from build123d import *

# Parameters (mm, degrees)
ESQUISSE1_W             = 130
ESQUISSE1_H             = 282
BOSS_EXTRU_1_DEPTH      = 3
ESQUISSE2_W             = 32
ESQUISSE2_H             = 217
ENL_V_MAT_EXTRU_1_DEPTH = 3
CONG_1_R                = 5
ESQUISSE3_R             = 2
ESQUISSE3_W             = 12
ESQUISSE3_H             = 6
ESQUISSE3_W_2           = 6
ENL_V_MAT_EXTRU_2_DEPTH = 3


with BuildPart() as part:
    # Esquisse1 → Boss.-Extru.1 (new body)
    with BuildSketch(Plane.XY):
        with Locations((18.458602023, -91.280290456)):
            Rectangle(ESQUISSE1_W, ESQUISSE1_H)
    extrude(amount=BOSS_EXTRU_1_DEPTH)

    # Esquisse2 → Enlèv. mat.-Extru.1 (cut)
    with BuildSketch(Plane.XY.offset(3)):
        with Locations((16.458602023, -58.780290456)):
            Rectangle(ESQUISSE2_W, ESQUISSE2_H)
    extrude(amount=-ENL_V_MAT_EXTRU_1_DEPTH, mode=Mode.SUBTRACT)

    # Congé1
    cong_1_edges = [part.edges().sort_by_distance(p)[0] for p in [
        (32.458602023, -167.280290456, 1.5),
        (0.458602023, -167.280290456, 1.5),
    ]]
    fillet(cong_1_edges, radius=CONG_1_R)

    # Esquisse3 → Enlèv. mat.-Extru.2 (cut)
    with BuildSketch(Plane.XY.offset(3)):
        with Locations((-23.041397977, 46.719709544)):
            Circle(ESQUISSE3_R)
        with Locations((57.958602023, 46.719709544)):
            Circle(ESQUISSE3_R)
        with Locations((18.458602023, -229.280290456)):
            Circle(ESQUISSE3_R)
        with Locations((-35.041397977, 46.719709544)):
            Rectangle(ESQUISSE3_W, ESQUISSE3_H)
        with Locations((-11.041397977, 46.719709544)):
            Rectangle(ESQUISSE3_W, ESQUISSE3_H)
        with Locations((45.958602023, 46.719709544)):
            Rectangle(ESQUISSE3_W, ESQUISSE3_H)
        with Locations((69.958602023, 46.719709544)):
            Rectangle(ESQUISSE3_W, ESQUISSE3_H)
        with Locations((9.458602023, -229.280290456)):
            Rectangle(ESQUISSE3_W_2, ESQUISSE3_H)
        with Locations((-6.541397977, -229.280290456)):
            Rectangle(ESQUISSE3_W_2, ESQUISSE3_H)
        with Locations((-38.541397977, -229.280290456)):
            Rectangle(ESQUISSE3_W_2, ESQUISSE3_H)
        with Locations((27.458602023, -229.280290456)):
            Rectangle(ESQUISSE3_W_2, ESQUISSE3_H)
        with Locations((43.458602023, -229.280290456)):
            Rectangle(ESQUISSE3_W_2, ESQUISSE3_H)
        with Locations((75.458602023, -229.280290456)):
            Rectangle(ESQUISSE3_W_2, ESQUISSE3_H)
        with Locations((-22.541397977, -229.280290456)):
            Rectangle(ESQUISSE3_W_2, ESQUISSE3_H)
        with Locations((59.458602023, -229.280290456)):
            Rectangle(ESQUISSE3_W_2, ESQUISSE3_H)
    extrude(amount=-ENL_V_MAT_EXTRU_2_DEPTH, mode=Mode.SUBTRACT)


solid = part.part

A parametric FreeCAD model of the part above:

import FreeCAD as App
import Part
import Sketcher
Q = App.Units.Quantity


def edges_at(feature, points):
    """Names of the edges that pass closest to the given points."""
    edges = feature.Shape.Edges
    near = lambda p: min(range(len(edges)), key=lambda i: edges[i].distToShape(Part.Vertex(*p))[0])
    return sorted({f"Edge{near(p) + 1}" for p in points})

doc = App.newDocument("Part")
body = doc.addObject("PartDesign::Body", "Body")

# Sketch on XY plane
sketch1 = body.newObject("Sketcher::SketchObject", "Sketch")
sketch1.AttachmentSupport = (doc.getObject("XY_Plane"), [""])
sketch1.MapMode = "FlatFace"
sketch1.addGeometry(Part.LineSegment(App.Vector(-47, 50, 0), App.Vector(-47, -232, 0)), False)
sketch1.addGeometry(Part.LineSegment(App.Vector(-47, -232, 0), App.Vector(83, -232, 0)), False)
sketch1.addGeometry(Part.LineSegment(App.Vector(83, -232, 0), App.Vector(83, 50, 0)), False)
sketch1.addGeometry(Part.LineSegment(App.Vector(83, 50, 0), App.Vector(-47, 50, 0)), False)
sketch1.addConstraint(Sketcher.Constraint("Coincident", 0, 2, 1, 1))
sketch1.addConstraint(Sketcher.Constraint("Coincident", 1, 2, 2, 1))
sketch1.addConstraint(Sketcher.Constraint("Coincident", 2, 2, 3, 1))
sketch1.addConstraint(Sketcher.Constraint("Coincident", 3, 2, 0, 1))
sketch1.addConstraint(Sketcher.Constraint("Vertical", 0))
sketch1.addConstraint(Sketcher.Constraint("Horizontal", 1))
sketch1.addConstraint(Sketcher.Constraint("Vertical", 2))
sketch1.addConstraint(Sketcher.Constraint("Horizontal", 3))
sketch1.addConstraint(Sketcher.Constraint("DistanceX", 1, 1, 1, 2, Q("130 mm")))
sketch1.addConstraint(Sketcher.Constraint("DistanceY", 0, 2, 0, 1, Q("282 mm")))
sketch1.addConstraint(Sketcher.Constraint("DistanceY", 0, 2, -1, 1, Q("232.28029 mm")))
sketch1.addConstraint(Sketcher.Constraint("DistanceX", 0, 2, -1, 1, Q("46.541398 mm")))
pad1 = body.newObject("PartDesign::Pad", "Pad")
pad1.Profile = sketch1
pad1.Length = 3

# Sketch on XY plane
sketch2 = body.newObject("Sketcher::SketchObject", "Sketch001")
sketch2.AttachmentSupport = (doc.getObject("XY_Plane"), [""])
sketch2.MapMode = "FlatFace"
sketch2.AttachmentOffset = App.Placement(App.Vector(0, 0, 3), App.Rotation())
sketch2.addGeometry(Part.LineSegment(App.Vector(0, 50, 0), App.Vector(0, -167, 0)), False)
sketch2.addGeometry(Part.LineSegment(App.Vector(0, -167, 0), App.Vector(32, -167, 0)), False)
sketch2.addGeometry(Part.LineSegment(App.Vector(32, -167, 0), App.Vector(32, 50, 0)), False)
sketch2.addGeometry(Part.LineSegment(App.Vector(32, 50, 0), App.Vector(0, 50, 0)), False)
sketch2.addConstraint(Sketcher.Constraint("Coincident", 0, 2, 1, 1))
sketch2.addConstraint(Sketcher.Constraint("Coincident", 1, 2, 2, 1))
sketch2.addConstraint(Sketcher.Constraint("Coincident", 2, 2, 3, 1))
sketch2.addConstraint(Sketcher.Constraint("Coincident", 3, 2, 0, 1))
sketch2.addConstraint(Sketcher.Constraint("Vertical", 0))
sketch2.addConstraint(Sketcher.Constraint("Horizontal", 1))
sketch2.addConstraint(Sketcher.Constraint("Vertical", 2))
sketch2.addConstraint(Sketcher.Constraint("Horizontal", 3))
sketch2.addConstraint(Sketcher.Constraint("DistanceX", 1, 1, 1, 2, Q("32 mm")))
sketch2.addConstraint(Sketcher.Constraint("DistanceY", 0, 2, 0, 1, Q("217 mm")))
sketch2.addConstraint(Sketcher.Constraint("DistanceY", 0, 2, -1, 1, Q("167.28029 mm")))
sketch2.addConstraint(Sketcher.Constraint("DistanceX", -1, 1, 0, 2, Q("0.458602 mm")))
pocket1 = body.newObject("PartDesign::Pocket", "Pocket")
pocket1.Profile = sketch2
pocket1.Length = 3
doc.recompute()

fillet = body.newObject("PartDesign::Fillet", "Fillet")
fillet.Base = (pocket1, edges_at(pocket1, [(32.459, -167.28, 1.5), (0.459, -167.28, 1.5)]))
fillet.Radius = 5

# Sketch on XY plane
sketch3 = body.newObject("Sketcher::SketchObject", "Sketch002")
sketch3.AttachmentSupport = (doc.getObject("XY_Plane"), [""])
sketch3.MapMode = "FlatFace"
sketch3.AttachmentOffset = App.Placement(App.Vector(0, 0, 3), App.Rotation())
sketch3.addGeometry(Part.Circle(App.Vector(-23, 46.7, 0), App.Vector(0, 0, 1), 2), False)
sketch3.addGeometry(Part.Circle(App.Vector(58, 46.7, 0), App.Vector(0, 0, 1), 2), False)
sketch3.addGeometry(Part.Circle(App.Vector(18.5, -229.3, 0), App.Vector(0, 0, 1), 2), False)
sketch3.addGeometry(Part.LineSegment(App.Vector(-41, 49.7, 0), App.Vector(-41, 43.7, 0)), False)
sketch3.addGeometry(Part.LineSegment(App.Vector(-41, 43.7, 0), App.Vector(-29, 43.7, 0)), False)
sketch3.addGeometry(Part.LineSegment(App.Vector(-29, 43.7, 0), App.Vector(-29, 49.7, 0)), False)
sketch3.addGeometry(Part.LineSegment(App.Vector(-29, 49.7, 0), App.Vector(-41, 49.7, 0)), False)
sketch3.addGeometry(Part.LineSegment(App.Vector(-17, 49.7, 0), App.Vector(-17, 43.7, 0)), False)
sketch3.addGeometry(Part.LineSegment(App.Vector(-17, 43.7, 0), App.Vector(-5, 43.7, 0)), False)
sketch3.addGeometry(Part.LineSegment(App.Vector(-5, 43.7, 0), App.Vector(-5, 49.7, 0)), False)
sketch3.addGeometry(Part.LineSegment(App.Vector(-5, 49.7, 0), App.Vector(-17, 49.7, 0)), False)
sketch3.addGeometry(Part.LineSegment(App.Vector(40, 49.7, 0), App.Vector(40, 43.7, 0)), False)
sketch3.addGeometry(Part.LineSegment(App.Vector(40, 43.7, 0), App.Vector(52, 43.7, 0)), False)
sketch3.addGeometry(Part.LineSegment(App.Vector(52, 43.7, 0), App.Vector(52, 49.7, 0)), False)
sketch3.addGeometry(Part.LineSegment(App.Vector(52, 49.7, 0), App.Vector(40, 49.7, 0)), False)
sketch3.addGeometry(Part.LineSegment(App.Vector(64, 49.7, 0), App.Vector(64, 43.7, 0)), False)
sketch3.addGeometry(Part.LineSegment(App.Vector(64, 43.7, 0), App.Vector(76, 43.7, 0)), False)
sketch3.addGeometry(Part.LineSegment(App.Vector(76, 43.7, 0), App.Vector(76, 49.7, 0)), False)
sketch3.addGeometry(Part.LineSegment(App.Vector(76, 49.7, 0), App.Vector(64, 49.7, 0)), False)
sketch3.addGeometry(Part.LineSegment(App.Vector(6.5, -226.3, 0), App.Vector(6.5, -232.3, 0)), False)
sketch3.addGeometry(Part.LineSegment(App.Vector(6.5, -232.3, 0), App.Vector(12.5, -232.3, 0)), False)
sketch3.addGeometry(Part.LineSegment(App.Vector(12.5, -232.3, 0), App.Vector(12.5, -226.3, 0)), False)
sketch3.addGeometry(Part.LineSegment(App.Vector(12.5, -226.3, 0), App.Vector(6.5, -226.3, 0)), False)
sketch3.addGeometry(Part.LineSegment(App.Vector(-9.5, -226.3, 0), App.Vector(-9.5, -232.3, 0)), False)
sketch3.addGeometry(Part.LineSegment(App.Vector(-9.5, -232.3, 0), App.Vector(-3.5, -232.3, 0)), False)
sketch3.addGeometry(Part.LineSegment(App.Vector(-3.5, -232.3, 0), App.Vector(-3.5, -226.3, 0)), False)
sketch3.addGeometry(Part.LineSegment(App.Vector(-3.5, -226.3, 0), App.Vector(-9.5, -226.3, 0)), False)
sketch3.addGeometry(Part.LineSegment(App.Vector(-41.5, -226.3, 0), App.Vector(-41.5, -232.3, 0)), False)
sketch3.addGeometry(Part.LineSegment(App.Vector(-41.5, -232.3, 0), App.Vector(-35.5, -232.3, 0)), False)
sketch3.addGeometry(Part.LineSegment(App.Vector(-35.5, -232.3, 0), App.Vector(-35.5, -226.3, 0)), False)
sketch3.addGeometry(Part.LineSegment(App.Vector(-35.5, -226.3, 0), App.Vector(-41.5, -226.3, 0)), False)
sketch3.addGeometry(Part.LineSegment(App.Vector(24.5, -226.3, 0), App.Vector(24.5, -232.3, 0)), False)
sketch3.addGeometry(Part.LineSegment(App.Vector(24.5, -232.3, 0), App.Vector(30.5, -232.3, 0)), False)
sketch3.addGeometry(Part.LineSegment(App.Vector(30.5, -232.3, 0), App.Vector(30.5, -226.3, 0)), False)
sketch3.addGeometry(Part.LineSegment(App.Vector(30.5, -226.3, 0), App.Vector(24.5, -226.3, 0)), False)
sketch3.addGeometry(Part.LineSegment(App.Vector(40.5, -226.3, 0), App.Vector(40.5, -232.3, 0)), False)
sketch3.addGeometry(Part.LineSegment(App.Vector(40.5, -232.3, 0), App.Vector(46.5, -232.3, 0)), False)
sketch3.addGeometry(Part.LineSegment(App.Vector(46.5, -232.3, 0), App.Vector(46.5, -226.3, 0)), False)
sketch3.addGeometry(Part.LineSegment(App.Vector(46.5, -226.3, 0), App.Vector(40.5, -226.3, 0)), False)
sketch3.addGeometry(Part.LineSegment(App.Vector(72.5, -226.3, 0), App.Vector(72.5, -232.3, 0)), False)
sketch3.addGeometry(Part.LineSegment(App.Vector(72.5, -232.3, 0), App.Vector(78.5, -232.3, 0)), False)
sketch3.addGeometry(Part.LineSegment(App.Vector(78.5, -232.3, 0), App.Vector(78.5, -226.3, 0)), False)
sketch3.addGeometry(Part.LineSegment(App.Vector(78.5, -226.3, 0), App.Vector(72.5, -226.3, 0)), False)
sketch3.addGeometry(Part.LineSegment(App.Vector(-25.5, -226.3, 0), App.Vector(-25.5, -232.3, 0)), False)
sketch3.addGeometry(Part.LineSegment(App.Vector(-25.5, -232.3, 0), App.Vector(-19.5, -232.3, 0)), False)
sketch3.addGeometry(Part.LineSegment(App.Vector(-19.5, -232.3, 0), App.Vector(-19.5, -226.3, 0)), False)
sketch3.addGeometry(Part.LineSegment(App.Vector(-19.5, -226.3, 0), App.Vector(-25.5, -226.3, 0)), False)
sketch3.addGeometry(Part.LineSegment(App.Vector(56.5, -226.3, 0), App.Vector(56.5, -232.3, 0)), False)
sketch3.addGeometry(Part.LineSegment(App.Vector(56.5, -232.3, 0), App.Vector(62.5, -232.3, 0)), False)
sketch3.addGeometry(Part.LineSegment(App.Vector(62.5, -232.3, 0), App.Vector(62.5, -226.3, 0)), False)
sketch3.addGeometry(Part.LineSegment(App.Vector(62.5, -226.3, 0), App.Vector(56.5, -226.3, 0)), False)
sketch3.addConstraint(Sketcher.Constraint("Coincident", 3, 2, 4, 1))
sketch3.addConstraint(Sketcher.Constraint("Coincident", 4, 2, 5, 1))
sketch3.addConstraint(Sketcher.Constraint("Coincident", 5, 2, 6, 1))
sketch3.addConstraint(Sketcher.Constraint("Coincident", 6, 2, 3, 1))
sketch3.addConstraint(Sketcher.Constraint("Coincident", 7, 2, 8, 1))
sketch3.addConstraint(Sketcher.Constraint("Coincident", 8, 2, 9, 1))
sketch3.addConstraint(Sketcher.Constraint("Coincident", 9, 2, 10, 1))
sketch3.addConstraint(Sketcher.Constraint("Coincident", 10, 2, 7, 1))
sketch3.addConstraint(Sketcher.Constraint("Coincident", 11, 2, 12, 1))
sketch3.addConstraint(Sketcher.Constraint("Coincident", 12, 2, 13, 1))
sketch3.addConstraint(Sketcher.Constraint("Coincident", 13, 2, 14, 1))
sketch3.addConstraint(Sketcher.Constraint("Coincident", 14, 2, 11, 1))
sketch3.addConstraint(Sketcher.Constraint("Coincident", 15, 2, 16, 1))
sketch3.addConstraint(Sketcher.Constraint("Coincident", 16, 2, 17, 1))
sketch3.addConstraint(Sketcher.Constraint("Coincident", 17, 2, 18, 1))
sketch3.addConstraint(Sketcher.Constraint("Coincident", 18, 2, 15, 1))
sketch3.addConstraint(Sketcher.Constraint("Coincident", 19, 2, 20, 1))
sketch3.addConstraint(Sketcher.Constraint("Coincident", 20, 2, 21, 1))
sketch3.addConstraint(Sketcher.Constraint("Coincident", 21, 2, 22, 1))
sketch3.addConstraint(Sketcher.Constraint("Coincident", 22, 2, 19, 1))
sketch3.addConstraint(Sketcher.Constraint("Coincident", 23, 2, 24, 1))
sketch3.addConstraint(Sketcher.Constraint("Coincident", 24, 2, 25, 1))
sketch3.addConstraint(Sketcher.Constraint("Coincident", 25, 2, 26, 1))
sketch3.addConstraint(Sketcher.Constraint("Coincident", 26, 2, 23, 1))
sketch3.addConstraint(Sketcher.Constraint("Coincident", 27, 2, 28, 1))
sketch3.addConstraint(Sketcher.Constraint("Coincident", 28, 2, 29, 1))
sketch3.addConstraint(Sketcher.Constraint("Coincident", 29, 2, 30, 1))
sketch3.addConstraint(Sketcher.Constraint("Coincident", 30, 2, 27, 1))
sketch3.addConstraint(Sketcher.Constraint("Coincident", 31, 2, 32, 1))
sketch3.addConstraint(Sketcher.Constraint("Coincident", 32, 2, 33, 1))
sketch3.addConstraint(Sketcher.Constraint("Coincident", 33, 2, 34, 1))
sketch3.addConstraint(Sketcher.Constraint("Coincident", 34, 2, 31, 1))
sketch3.addConstraint(Sketcher.Constraint("Coincident", 35, 2, 36, 1))
sketch3.addConstraint(Sketcher.Constraint("Coincident", 36, 2, 37, 1))
sketch3.addConstraint(Sketcher.Constraint("Coincident", 37, 2, 38, 1))
sketch3.addConstraint(Sketcher.Constraint("Coincident", 38, 2, 35, 1))
sketch3.addConstraint(Sketcher.Constraint("Coincident", 39, 2, 40, 1))
sketch3.addConstraint(Sketcher.Constraint("Coincident", 40, 2, 41, 1))
sketch3.addConstraint(Sketcher.Constraint("Coincident", 41, 2, 42, 1))
sketch3.addConstraint(Sketcher.Constraint("Coincident", 42, 2, 39, 1))
sketch3.addConstraint(Sketcher.Constraint("Coincident", 43, 2, 44, 1))
sketch3.addConstraint(Sketcher.Constraint("Coincident", 44, 2, 45, 1))
sketch3.addConstraint(Sketcher.Constraint("Coincident", 45, 2, 46, 1))
sketch3.addConstraint(Sketcher.Constraint("Coincident", 46, 2, 43, 1))
sketch3.addConstraint(Sketcher.Constraint("Coincident", 47, 2, 48, 1))
sketch3.addConstraint(Sketcher.Constraint("Coincident", 48, 2, 49, 1))
sketch3.addConstraint(Sketcher.Constraint("Coincident", 49, 2, 50, 1))
sketch3.addConstraint(Sketcher.Constraint("Coincident", 50, 2, 47, 1))
sketch3.addConstraint(Sketcher.Constraint("Vertical", 3))
sketch3.addConstraint(Sketcher.Constraint("Horizontal", 4))
sketch3.addConstraint(Sketcher.Constraint("Vertical", 5))
sketch3.addConstraint(Sketcher.Constraint("Horizontal", 6))
sketch3.addConstraint(Sketcher.Constraint("Vertical", 7))
sketch3.addConstraint(Sketcher.Constraint("Horizontal", 8))
sketch3.addConstraint(Sketcher.Constraint("Vertical", 9))
sketch3.addConstraint(Sketcher.Constraint("Horizontal", 10))
sketch3.addConstraint(Sketcher.Constraint("Vertical", 11))
sketch3.addConstraint(Sketcher.Constraint("Horizontal", 12))
sketch3.addConstraint(Sketcher.Constraint("Vertical", 13))
sketch3.addConstraint(Sketcher.Constraint("Horizontal", 14))
sketch3.addConstraint(Sketcher.Constraint("Vertical", 15))
sketch3.addConstraint(Sketcher.Constraint("Horizontal", 16))
sketch3.addConstraint(Sketcher.Constraint("Vertical", 17))
sketch3.addConstraint(Sketcher.Constraint("Horizontal", 18))
sketch3.addConstraint(Sketcher.Constraint("Vertical", 19))
sketch3.addConstraint(Sketcher.Constraint("Horizontal", 20))
sketch3.addConstraint(Sketcher.Constraint("Vertical", 21))
sketch3.addConstraint(Sketcher.Constraint("Horizontal", 22))
sketch3.addConstraint(Sketcher.Constraint("Vertical", 23))
sketch3.addConstraint(Sketcher.Constraint("Horizontal", 24))
sketch3.addConstraint(Sketcher.Constraint("Vertical", 25))
sketch3.addConstraint(Sketcher.Constraint("Horizontal", 26))
sketch3.addConstraint(Sketcher.Constraint("Vertical", 27))
sketch3.addConstraint(Sketcher.Constraint("Horizontal", 28))
sketch3.addConstraint(Sketcher.Constraint("Vertical", 29))
sketch3.addConstraint(Sketcher.Constraint("Horizontal", 30))
sketch3.addConstraint(Sketcher.Constraint("Vertical", 31))
sketch3.addConstraint(Sketcher.Constraint("Horizontal", 32))
sketch3.addConstraint(Sketcher.Constraint("Vertical", 33))
sketch3.addConstraint(Sketcher.Constraint("Horizontal", 34))
sketch3.addConstraint(Sketcher.Constraint("Vertical", 35))
sketch3.addConstraint(Sketcher.Constraint("Horizontal", 36))
sketch3.addConstraint(Sketcher.Constraint("Vertical", 37))
sketch3.addConstraint(Sketcher.Constraint("Horizontal", 38))
sketch3.addConstraint(Sketcher.Constraint("Vertical", 39))
sketch3.addConstraint(Sketcher.Constraint("Horizontal", 40))
sketch3.addConstraint(Sketcher.Constraint("Vertical", 41))
sketch3.addConstraint(Sketcher.Constraint("Horizontal", 42))
sketch3.addConstraint(Sketcher.Constraint("Vertical", 43))
sketch3.addConstraint(Sketcher.Constraint("Horizontal", 44))
sketch3.addConstraint(Sketcher.Constraint("Vertical", 45))
sketch3.addConstraint(Sketcher.Constraint("Horizontal", 46))
sketch3.addConstraint(Sketcher.Constraint("Vertical", 47))
sketch3.addConstraint(Sketcher.Constraint("Horizontal", 48))
sketch3.addConstraint(Sketcher.Constraint("Vertical", 49))
sketch3.addConstraint(Sketcher.Constraint("Horizontal", 50))
sketch3.addConstraint(Sketcher.Constraint("Equal", 0, 1))
sketch3.addConstraint(Sketcher.Constraint("Equal", 1, 2))
sketch3.addConstraint(Sketcher.Constraint("Horizontal", 0, 3, 1, 3))
sketch3.addConstraint(Sketcher.Constraint("Horizontal", 4, 2, 7, 2))
sketch3.addConstraint(Sketcher.Constraint("Horizontal", 6, 2, 9, 2))
sketch3.addConstraint(Sketcher.Constraint("Horizontal", 8, 2, 11, 2))
sketch3.addConstraint(Sketcher.Constraint("Horizontal", 10, 2, 13, 2))
sketch3.addConstraint(Sketcher.Constraint("Horizontal", 12, 2, 15, 2))
sketch3.addConstraint(Sketcher.Constraint("Horizontal", 14, 2, 17, 2))
sketch3.addConstraint(Sketcher.Constraint("Horizontal", 20, 2, 23, 2))
sketch3.addConstraint(Sketcher.Constraint("Horizontal", 22, 2, 25, 2))
sketch3.addConstraint(Sketcher.Constraint("Horizontal", 24, 2, 27, 2))
sketch3.addConstraint(Sketcher.Constraint("Horizontal", 26, 2, 29, 2))
sketch3.addConstraint(Sketcher.Constraint("Horizontal", 28, 2, 31, 2))
sketch3.addConstraint(Sketcher.Constraint("Horizontal", 30, 2, 33, 2))
sketch3.addConstraint(Sketcher.Constraint("Horizontal", 32, 2, 35, 2))
sketch3.addConstraint(Sketcher.Constraint("Horizontal", 34, 2, 37, 2))
sketch3.addConstraint(Sketcher.Constraint("Horizontal", 36, 2, 39, 2))
sketch3.addConstraint(Sketcher.Constraint("Horizontal", 38, 2, 41, 2))
sketch3.addConstraint(Sketcher.Constraint("Horizontal", 40, 2, 43, 2))
sketch3.addConstraint(Sketcher.Constraint("Horizontal", 42, 2, 45, 2))
sketch3.addConstraint(Sketcher.Constraint("Horizontal", 44, 2, 47, 2))
sketch3.addConstraint(Sketcher.Constraint("Horizontal", 46, 2, 49, 2))
sketch3.addConstraint(Sketcher.Constraint("Equal", 6, 8))
sketch3.addConstraint(Sketcher.Constraint("Equal", 10, 12))
sketch3.addConstraint(Sketcher.Constraint("Equal", 14, 16))
sketch3.addConstraint(Sketcher.Constraint("Equal", 22, 24))
sketch3.addConstraint(Sketcher.Constraint("Equal", 26, 28))
sketch3.addConstraint(Sketcher.Constraint("Equal", 30, 32))
sketch3.addConstraint(Sketcher.Constraint("Equal", 34, 36))
sketch3.addConstraint(Sketcher.Constraint("Equal", 38, 40))
sketch3.addConstraint(Sketcher.Constraint("Equal", 42, 44))
sketch3.addConstraint(Sketcher.Constraint("Equal", 46, 48))
sketch3.addConstraint(Sketcher.Constraint("Equal", 50, 3))
sketch3.addConstraint(Sketcher.Constraint("Equal", 17, 19))
sketch3.addConstraint(Sketcher.Constraint("Diameter", 0, Q("4 mm")))
sketch3.addConstraint(Sketcher.Constraint("DistanceX", 4, 1, 4, 2, Q("12 mm")))
sketch3.addConstraint(Sketcher.Constraint("DistanceX", 20, 1, 20, 2, Q("6 mm")))
sketch3.addConstraint(Sketcher.Constraint("DistanceX", 0, 3, 1, 3, Q("81 mm")))
sketch3.addConstraint(Sketcher.Constraint("DistanceY", 2, 3, 1, 3, Q("276 mm")))
sketch3.addConstraint(Sketcher.Constraint("DistanceX", 3, 2, 0, 3, Q("18 mm")))
sketch3.addConstraint(Sketcher.Constraint("DistanceY", 3, 2, 0, 3, Q("3 mm")))
sketch3.addConstraint(Sketcher.Constraint("DistanceX", 0, 3, 7, 2, Q("6 mm")))
sketch3.addConstraint(Sketcher.Constraint("DistanceX", 11, 2, 1, 3, Q("18 mm")))
sketch3.addConstraint(Sketcher.Constraint("DistanceX", 1, 3, 15, 2, Q("6 mm")))
sketch3.addConstraint(Sketcher.Constraint("DistanceX", 19, 2, 2, 3, Q("12 mm")))
sketch3.addConstraint(Sketcher.Constraint("DistanceY", 19, 2, 2, 3, Q("3 mm")))
sketch3.addConstraint(Sketcher.Constraint("DistanceX", 23, 2, 19, 2, Q("16 mm")))
sketch3.addConstraint(Sketcher.Constraint("DistanceX", 27, 2, 23, 2, Q("32 mm")))
sketch3.addConstraint(Sketcher.Constraint("DistanceX", 2, 3, 31, 2, Q("6 mm")))
sketch3.addConstraint(Sketcher.Constraint("DistanceX", 32, 2, 35, 2, Q("10 mm")))
sketch3.addConstraint(Sketcher.Constraint("DistanceX", 36, 2, 39, 2, Q("26 mm")))
sketch3.addConstraint(Sketcher.Constraint("DistanceX", 28, 2, 43, 2, Q("10 mm")))
sketch3.addConstraint(Sketcher.Constraint("DistanceX", 36, 2, 47, 2, Q("10 mm")))
sketch3.addConstraint(Sketcher.Constraint("DistanceX", 2, 3, 1, 3, Q("39.5 mm")))
sketch3.addConstraint(Sketcher.Constraint("DistanceY", -1, 1, 0, 3, Q("46.71971 mm")))
sketch3.addConstraint(Sketcher.Constraint("DistanceX", 0, 3, -1, 1, Q("23.041398 mm")))
pocket2 = body.newObject("PartDesign::Pocket", "Pocket001")
pocket2.Profile = sketch3
pocket2.Length = 3

doc.recompute()
